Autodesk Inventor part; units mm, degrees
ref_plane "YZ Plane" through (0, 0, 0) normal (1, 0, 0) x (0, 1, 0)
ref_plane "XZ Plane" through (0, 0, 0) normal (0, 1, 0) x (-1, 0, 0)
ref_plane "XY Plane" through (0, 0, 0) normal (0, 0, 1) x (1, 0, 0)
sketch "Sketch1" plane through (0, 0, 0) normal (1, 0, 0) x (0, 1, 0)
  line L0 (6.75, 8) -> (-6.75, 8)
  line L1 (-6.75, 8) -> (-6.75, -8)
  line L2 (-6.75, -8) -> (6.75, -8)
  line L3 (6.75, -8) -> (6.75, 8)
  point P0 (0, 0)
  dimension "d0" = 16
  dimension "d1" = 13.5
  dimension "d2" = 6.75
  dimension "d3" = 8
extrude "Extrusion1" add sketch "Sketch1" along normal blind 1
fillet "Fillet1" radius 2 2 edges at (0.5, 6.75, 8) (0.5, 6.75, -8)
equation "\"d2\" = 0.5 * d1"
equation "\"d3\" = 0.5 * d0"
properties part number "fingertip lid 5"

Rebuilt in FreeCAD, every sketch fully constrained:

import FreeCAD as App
import Part
import Sketcher
from FreeCAD import Vector
Q = App.Units.Quantity


def edges_at(feature, points):
    """Names of the edges that pass closest to the given points."""
    edges = feature.Shape.Edges
    near = lambda p: min(range(len(edges)), key=lambda i: edges[i].distToShape(Part.Vertex(*p))[0])
    return sorted({f"Edge{near(p) + 1}" for p in points})


def add_polygon(sketch, points):
    """Adds a closed chain of lines whose ends are joined by coincident constraints."""
    first, n = sketch.GeometryCount, len(points)
    for a, b in zip(points, points[1:] + points[:1]):
        sketch.addGeometry(Part.LineSegment(App.Vector(*a, 0), App.Vector(*b, 0)), False)
    for i in range(n):
        sketch.addConstraint(Sketcher.Constraint("Coincident", first + i, 2, first + (i + 1) % n, 1))

doc = App.newDocument("Part")
body = doc.addObject("PartDesign::Body", "Body")

# Sketch on YZ plane
sketch1 = doc.addObject("Sketcher::SketchObject", "Sketch")
body.addObject(sketch1)
sketch1.AttachmentSupport = (doc.YZ_Plane, [""])
sketch1.MapMode = "FlatFace"
add_polygon(sketch1, [(7, -8), (7, 8), (-7, 8), (-7, -8)])  # lines 0-3
sketch1.addConstraint(Sketcher.Constraint("Vertical", 0))
sketch1.addConstraint(Sketcher.Constraint("Horizontal", 1))
sketch1.addConstraint(Sketcher.Constraint("Vertical", 2))
sketch1.addConstraint(Sketcher.Constraint("Horizontal", 3))
sketch1.addConstraint(Sketcher.Constraint("Symmetric", 0, 2, 2, 2, -1, 1))
sketch1.addConstraint(Sketcher.Constraint("DistanceY", 0, 1, 0, 2, Q("16 mm")))
sketch1.addConstraint(Sketcher.Constraint("DistanceX", 1, 2, 1, 1, Q("13.5 mm")))
pad1 = doc.addObject("PartDesign::Pad", "Pad")
body.addObject(pad1)
pad1.Profile = sketch1
pad1.Length = 1
doc.recompute()

fillet = doc.addObject("PartDesign::Fillet", "Fillet")
body.addObject(fillet)
fillet.Base = (pad1, edges_at(pad1, [(0.5, 6.75, 8), (0.5, 6.75, -8)]))
fillet.Radius = 2

doc.recompute()
